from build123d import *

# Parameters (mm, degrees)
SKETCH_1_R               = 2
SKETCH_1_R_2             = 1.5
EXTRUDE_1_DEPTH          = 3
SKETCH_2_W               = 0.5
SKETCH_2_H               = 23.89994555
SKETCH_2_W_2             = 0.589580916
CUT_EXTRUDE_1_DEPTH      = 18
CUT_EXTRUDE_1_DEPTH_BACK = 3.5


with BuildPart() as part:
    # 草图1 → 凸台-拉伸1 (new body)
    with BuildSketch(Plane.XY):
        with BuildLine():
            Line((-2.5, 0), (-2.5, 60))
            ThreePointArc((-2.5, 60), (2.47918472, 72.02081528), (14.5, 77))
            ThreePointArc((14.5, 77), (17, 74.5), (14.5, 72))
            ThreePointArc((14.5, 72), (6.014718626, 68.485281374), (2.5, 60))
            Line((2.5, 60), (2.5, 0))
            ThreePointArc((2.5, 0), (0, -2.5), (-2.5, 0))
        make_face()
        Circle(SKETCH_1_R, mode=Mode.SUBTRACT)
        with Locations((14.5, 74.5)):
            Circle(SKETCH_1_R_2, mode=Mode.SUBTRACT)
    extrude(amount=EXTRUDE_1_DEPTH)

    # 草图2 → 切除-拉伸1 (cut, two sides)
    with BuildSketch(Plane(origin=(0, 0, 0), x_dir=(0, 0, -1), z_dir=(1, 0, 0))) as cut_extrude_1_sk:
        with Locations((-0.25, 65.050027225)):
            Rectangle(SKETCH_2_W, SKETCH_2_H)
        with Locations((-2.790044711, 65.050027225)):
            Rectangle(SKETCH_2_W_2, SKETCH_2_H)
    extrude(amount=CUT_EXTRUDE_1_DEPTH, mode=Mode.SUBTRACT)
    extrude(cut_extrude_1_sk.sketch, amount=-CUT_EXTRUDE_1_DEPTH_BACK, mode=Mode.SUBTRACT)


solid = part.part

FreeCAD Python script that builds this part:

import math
import FreeCAD as App
import Part
import Sketcher
from FreeCAD import Vector


def add_polygon(sketch, points):
    """Adds a closed chain of lines whose ends are joined by coincident constraints."""
    first, n = sketch.GeometryCount, len(points)
    for a, b in zip(points, points[1:] + points[:1]):
        sketch.addGeometry(Part.LineSegment(App.Vector(*a, 0), App.Vector(*b, 0)), False)
    for i in range(n):
        sketch.addConstraint(Sketcher.Constraint("Coincident", first + i, 2, first + (i + 1) % n, 1))

doc = App.newDocument("Part")
body = doc.addObject("PartDesign::Body", "Body")

# Sketch on XY plane
sketch1 = body.newObject("Sketcher::SketchObject", "Sketch")
sketch1.AttachmentSupport = (doc.getObject("XY_Plane"), [""])
sketch1.MapMode = "FlatFace"
sketch1.addGeometry([
    Part.LineSegment(Vector(-2.5, 60, 0), Vector(-2.5, 0, 0)),  # 0
    Part.ArcOfCircle(Part.Circle(Vector(0, 0, 0), Vector(0, 0, 1), 2.5), math.radians(180), math.radians(360)),  # 1
    Part.LineSegment(Vector(2.5, 0, 0), Vector(2.5, 60, 0)),  # 2
    Part.ArcOfCircle(Part.Circle(Vector(14.5, 60, 0), Vector(0, 0, 1), 12), math.radians(90), math.radians(180)),  # 3
    Part.ArcOfCircle(Part.Circle(Vector(14.5, 74.5, 0), Vector(0, 0, 1), 2.5), math.radians(-90), math.radians(90)),  # 4
    Part.ArcOfCircle(Part.Circle(Vector(14.5, 60, 0), Vector(0, 0, 1), 17), math.radians(90), math.radians(180)),  # 5
    Part.Circle(Vector(0, 0, 0), Vector(0, 0, 1), 2),  # 6
    Part.Circle(Vector(14.5, 74.5, 0), Vector(0, 0, 1), 1.5),  # 7
], False)
sketch1.addConstraint([
    Sketcher.Constraint("Tangent", 0, 2, 1, 1),
    Sketcher.Constraint("Tangent", 1, 2, 2, 1),
    Sketcher.Constraint("Tangent", 2, 2, 3, 2),
    Sketcher.Constraint("Tangent", 3, 1, 4, 1),
    Sketcher.Constraint("Tangent", 4, 2, 5, 1),
    Sketcher.Constraint("Tangent", 5, 2, 0, 1),
    Sketcher.Constraint("Vertical", 0),
    Sketcher.Constraint("Vertical", 2),
    Sketcher.Constraint("Coincident", 1, 3, -1, 1),
    Sketcher.Constraint("Coincident", 6, 3, -1, 1),
    Sketcher.Constraint("Coincident", 5, 3, 3, 3),
    Sketcher.Constraint("Coincident", 7, 3, 4, 3),
    Sketcher.Constraint("Vertical", 3, 3, 4, 3),
    Sketcher.Constraint("Diameter", 6, 4.0),
    Sketcher.Constraint("Diameter", 7, 3.0),
    Sketcher.Constraint("Radius", 3, 12.0),
    Sketcher.Constraint("Radius", 5, 17.0),
    Sketcher.Constraint("DistanceY", 0, 2, 0, 1, 60.0),
])
pad1 = body.newObject("PartDesign::Pad", "Pad")
pad1.Profile = sketch1
pad1.Length = 3

# Sketch on YZ plane
sketch2 = body.newObject("Sketcher::SketchObject", "Sketch001")
sketch2.AttachmentSupport = (doc.getObject("YZ_Plane"), [""])
sketch2.MapMode = "FlatFace"
add_polygon(sketch2, [(77, 0.5), (53.100054, 0.5), (53.100054, 0), (77, 0)])  # lines 0-3
add_polygon(sketch2, [(77, 3.084835), (53.100054, 3.084835), (53.100054, 2.495254), (77, 2.495254)])  # lines 4-7
sketch2.addConstraint([
    Sketcher.Constraint("Horizontal", 0),
    Sketcher.Constraint("Vertical", 1),
    Sketcher.Constraint("Horizontal", 2),
    Sketcher.Constraint("Vertical", 3),
    Sketcher.Constraint("Horizontal", 4),
    Sketcher.Constraint("Vertical", 5),
    Sketcher.Constraint("Horizontal", 6),
    Sketcher.Constraint("Vertical", 7),
    Sketcher.Constraint("PointOnObject", 1, 2, -1),
    Sketcher.Constraint("Vertical", 1, 2, 4, 2),
    Sketcher.Constraint("Vertical", 3, 2, 6, 2),
    Sketcher.Constraint("DistanceY", 1, 2, 1, 1, 0.5),
    Sketcher.Constraint("DistanceX", -1, 1, 2, 2, 77.0),
    Sketcher.Constraint("DistanceY", 5, 2, 5, 1, 0.589581),
    Sketcher.Constraint("DistanceX", 0, 2, 0, 1, 23.899946),
    Sketcher.Constraint("DistanceY", -1, 1, 4, 2, 3.084835),
])
pocket1 = body.newObject("PartDesign::Pocket", "Pocket")
pocket1.Profile = sketch2
pocket1.Type = "ThroughAll"
pocket1.Midplane = True

doc.recompute()
